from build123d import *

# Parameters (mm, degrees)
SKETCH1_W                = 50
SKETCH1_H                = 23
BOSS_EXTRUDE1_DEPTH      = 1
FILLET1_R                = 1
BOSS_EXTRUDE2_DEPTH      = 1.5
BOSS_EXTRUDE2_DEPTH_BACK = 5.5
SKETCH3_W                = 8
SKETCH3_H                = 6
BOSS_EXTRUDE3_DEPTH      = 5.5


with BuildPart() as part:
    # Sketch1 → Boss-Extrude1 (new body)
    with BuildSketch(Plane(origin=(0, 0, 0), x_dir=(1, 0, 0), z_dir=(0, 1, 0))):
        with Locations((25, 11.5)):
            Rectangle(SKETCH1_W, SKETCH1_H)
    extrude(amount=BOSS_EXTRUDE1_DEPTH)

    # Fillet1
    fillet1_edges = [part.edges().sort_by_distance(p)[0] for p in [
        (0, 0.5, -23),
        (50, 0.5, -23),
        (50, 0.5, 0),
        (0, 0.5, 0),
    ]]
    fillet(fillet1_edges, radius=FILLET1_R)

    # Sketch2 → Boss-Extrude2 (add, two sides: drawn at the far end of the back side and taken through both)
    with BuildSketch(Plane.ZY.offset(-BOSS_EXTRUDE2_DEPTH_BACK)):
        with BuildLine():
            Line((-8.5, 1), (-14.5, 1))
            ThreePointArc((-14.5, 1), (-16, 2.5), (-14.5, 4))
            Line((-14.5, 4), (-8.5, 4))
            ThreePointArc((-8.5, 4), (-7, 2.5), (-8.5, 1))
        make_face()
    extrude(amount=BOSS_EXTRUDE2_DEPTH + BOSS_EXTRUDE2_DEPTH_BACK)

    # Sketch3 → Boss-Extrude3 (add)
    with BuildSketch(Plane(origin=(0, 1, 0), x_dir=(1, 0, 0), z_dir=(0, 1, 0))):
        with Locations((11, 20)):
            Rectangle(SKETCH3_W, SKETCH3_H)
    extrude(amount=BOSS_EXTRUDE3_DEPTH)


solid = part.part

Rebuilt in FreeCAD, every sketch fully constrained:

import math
import FreeCAD as App
import Part
import Sketcher

V = App.Vector


def edges_at(feature, points):
    """Names of the edges that pass closest to the given points."""
    edges = feature.Shape.Edges
    near = lambda p: min(range(len(edges)), key=lambda i: edges[i].distToShape(Part.Vertex(*p))[0])
    return sorted({f"Edge{near(p) + 1}" for p in points})


def add_polygon(sketch, points):
    """Adds a closed chain of lines whose ends are joined by coincident constraints."""
    first, n = sketch.GeometryCount, len(points)
    for a, b in zip(points, points[1:] + points[:1]):
        sketch.addGeometry(Part.LineSegment(App.Vector(*a, 0), App.Vector(*b, 0)), False)
    for i in range(n):
        sketch.addConstraint(Sketcher.Constraint("Coincident", first + i, 2, first + (i + 1) % n, 1))

doc = App.newDocument("Part")
params = doc.addObject("Spreadsheet::Sheet", "Params")
for row, (alias, value) in enumerate([
    ("sketch1_width", "50 mm"),
    ("sketch1_height", "23 mm"),
    ("pad1_length", "1 mm"),
    ("fillet_radius", "1 mm"),
    ("sketch2_radius", "1.5 mm"),
    ("sketch2_height", "6 mm"),
    ("pad2_length", "1.5 mm"),
    ("pad2_length2", "5.5 mm"),
    ("sketch3_width", "8 mm"),
    ("sketch3_height", "6 mm"),
    ("pad3_length", "5.5 mm"),
], start=1):
    params.set(f"A{row}", alias)
    params.set(f"B{row}", "=" + value)
    params.setAlias(f"B{row}", alias)

body = doc.addObject("PartDesign::Body", "Body")

# Sketch on XZ plane
sketch1 = doc.addObject("Sketcher::SketchObject", "Sketch")
body.addObject(sketch1)
sketch1.AttachmentSupport = (doc.XZ_Plane, [""])
sketch1.MapMode = "FlatFace"
add_polygon(sketch1, [(0, -23), (0, 0), (50, 0), (50, -23)])  # lines 0-3
sketch1.addConstraint(Sketcher.Constraint("Vertical", 0))
sketch1.addConstraint(Sketcher.Constraint("Horizontal", 1))
sketch1.addConstraint(Sketcher.Constraint("Vertical", 2))
sketch1.addConstraint(Sketcher.Constraint("Horizontal", 3))
sketch1.addConstraint(Sketcher.Constraint("Coincident", 0, 2, -1, 1))
sketch1.addConstraint(Sketcher.Constraint("DistanceX", 1, 1, 1, 2, 50.0))
sketch1.addConstraint(Sketcher.Constraint("DistanceY", 0, 1, 0, 2, 23.0))
sketch1.setExpression("Constraints[9]", "Params.sketch1_width")
sketch1.setExpression("Constraints[10]", "Params.sketch1_height")
pad1 = doc.addObject("PartDesign::Pad", "Pad")
body.addObject(pad1)
pad1.Profile = sketch1
pad1.setExpression("Length", "Params.pad1_length")
pad1.Reversed = True
doc.recompute()

fillet = doc.addObject("PartDesign::Fillet", "Fillet")
body.addObject(fillet)
fillet.Base = (pad1, edges_at(pad1, [
    (0, 0.5, -23),
    (50, 0.5, -23),
    (50, 0.5, 0),
    (0, 0.5, 0),
]))
fillet.setExpression("Radius", "Params.fillet_radius")

# Sketch on YZ plane
sketch2 = doc.addObject("Sketcher::SketchObject", "Sketch001")
body.addObject(sketch2)
sketch2.AttachmentSupport = (doc.YZ_Plane, [""])
sketch2.MapMode = "FlatFace"
sketch2.addGeometry(Part.LineSegment(V(1, -14.5, 0), V(1, -8.5, 0)), False)
sketch2.addGeometry(Part.ArcOfCircle(Part.Circle(V(2.5, -8.5, 0), V(0, 0, 1), 1.5), math.radians(0), math.radians(180)), False)
sketch2.addGeometry(Part.LineSegment(V(4, -8.5, 0), V(4, -14.5, 0)), False)
sketch2.addGeometry(Part.ArcOfCircle(Part.Circle(V(2.5, -14.5, 0), V(0, 0, 1), 1.5), math.radians(180), math.radians(360)), False)
sketch2.addConstraint(Sketcher.Constraint("Tangent", 0, 2, 1, 2))
sketch2.addConstraint(Sketcher.Constraint("Tangent", 1, 1, 2, 1))
sketch2.addConstraint(Sketcher.Constraint("Tangent", 2, 2, 3, 2))
sketch2.addConstraint(Sketcher.Constraint("Tangent", 3, 1, 0, 1))
sketch2.addConstraint(Sketcher.Constraint("Vertical", 0))
sketch2.addConstraint(Sketcher.Constraint("Vertical", 2))
sketch2.addConstraint(Sketcher.Constraint("Radius", 1, 1.5))
sketch2.addConstraint(Sketcher.Constraint("DistanceY", 0, 1, 0, 2, 6.0))
sketch2.addConstraint(Sketcher.Constraint("DistanceX", -1, 1, 0, 2, 1.0))
sketch2.addConstraint(Sketcher.Constraint("DistanceY", 1, 3, -1, 1, 8.5))
sketch2.setExpression("Constraints[6]", "Params.sketch2_radius")
sketch2.setExpression("Constraints[7]", "Params.sketch2_height")
pad2 = doc.addObject("PartDesign::Pad", "Pad001")
body.addObject(pad2)
pad2.Profile = sketch2
pad2.Type = "TwoLengths"
pad2.setExpression("Length", "Params.pad2_length")
pad2.setExpression("Length2", "Params.pad2_length2")
pad2.Reversed = True

# Sketch on XZ plane
sketch3 = doc.addObject("Sketcher::SketchObject", "Sketch002")
body.addObject(sketch3)
sketch3.AttachmentSupport = (doc.XZ_Plane, [""])
sketch3.MapMode = "FlatFace"
sketch3.AttachmentOffset = App.Placement(V(0, 0, -1), App.Rotation())
add_polygon(sketch3, [(7, -23), (7, -17), (15, -17), (15, -23)])  # lines 0-3
sketch3.addConstraint(Sketcher.Constraint("Vertical", 0))
sketch3.addConstraint(Sketcher.Constraint("Horizontal", 1))
sketch3.addConstraint(Sketcher.Constraint("Vertical", 2))
sketch3.addConstraint(Sketcher.Constraint("Horizontal", 3))
sketch3.addConstraint(Sketcher.Constraint("DistanceX", 1, 1, 1, 2, 8.0))
sketch3.addConstraint(Sketcher.Constraint("DistanceY", 0, 1, 0, 2, 6.0))
sketch3.addConstraint(Sketcher.Constraint("DistanceX", -1, 1, 0, 2, 7.0))
sketch3.addConstraint(Sketcher.Constraint("DistanceY", 0, 2, -1, 1, 17.0))
sketch3.setExpression("Constraints[8]", "Params.sketch3_width")
sketch3.setExpression("Constraints[9]", "Params.sketch3_height")
pad3 = doc.addObject("PartDesign::Pad", "Pad002")
body.addObject(pad3)
pad3.Profile = sketch3
pad3.setExpression("Length", "Params.pad3_length")
pad3.Reversed = True

doc.recompute()
